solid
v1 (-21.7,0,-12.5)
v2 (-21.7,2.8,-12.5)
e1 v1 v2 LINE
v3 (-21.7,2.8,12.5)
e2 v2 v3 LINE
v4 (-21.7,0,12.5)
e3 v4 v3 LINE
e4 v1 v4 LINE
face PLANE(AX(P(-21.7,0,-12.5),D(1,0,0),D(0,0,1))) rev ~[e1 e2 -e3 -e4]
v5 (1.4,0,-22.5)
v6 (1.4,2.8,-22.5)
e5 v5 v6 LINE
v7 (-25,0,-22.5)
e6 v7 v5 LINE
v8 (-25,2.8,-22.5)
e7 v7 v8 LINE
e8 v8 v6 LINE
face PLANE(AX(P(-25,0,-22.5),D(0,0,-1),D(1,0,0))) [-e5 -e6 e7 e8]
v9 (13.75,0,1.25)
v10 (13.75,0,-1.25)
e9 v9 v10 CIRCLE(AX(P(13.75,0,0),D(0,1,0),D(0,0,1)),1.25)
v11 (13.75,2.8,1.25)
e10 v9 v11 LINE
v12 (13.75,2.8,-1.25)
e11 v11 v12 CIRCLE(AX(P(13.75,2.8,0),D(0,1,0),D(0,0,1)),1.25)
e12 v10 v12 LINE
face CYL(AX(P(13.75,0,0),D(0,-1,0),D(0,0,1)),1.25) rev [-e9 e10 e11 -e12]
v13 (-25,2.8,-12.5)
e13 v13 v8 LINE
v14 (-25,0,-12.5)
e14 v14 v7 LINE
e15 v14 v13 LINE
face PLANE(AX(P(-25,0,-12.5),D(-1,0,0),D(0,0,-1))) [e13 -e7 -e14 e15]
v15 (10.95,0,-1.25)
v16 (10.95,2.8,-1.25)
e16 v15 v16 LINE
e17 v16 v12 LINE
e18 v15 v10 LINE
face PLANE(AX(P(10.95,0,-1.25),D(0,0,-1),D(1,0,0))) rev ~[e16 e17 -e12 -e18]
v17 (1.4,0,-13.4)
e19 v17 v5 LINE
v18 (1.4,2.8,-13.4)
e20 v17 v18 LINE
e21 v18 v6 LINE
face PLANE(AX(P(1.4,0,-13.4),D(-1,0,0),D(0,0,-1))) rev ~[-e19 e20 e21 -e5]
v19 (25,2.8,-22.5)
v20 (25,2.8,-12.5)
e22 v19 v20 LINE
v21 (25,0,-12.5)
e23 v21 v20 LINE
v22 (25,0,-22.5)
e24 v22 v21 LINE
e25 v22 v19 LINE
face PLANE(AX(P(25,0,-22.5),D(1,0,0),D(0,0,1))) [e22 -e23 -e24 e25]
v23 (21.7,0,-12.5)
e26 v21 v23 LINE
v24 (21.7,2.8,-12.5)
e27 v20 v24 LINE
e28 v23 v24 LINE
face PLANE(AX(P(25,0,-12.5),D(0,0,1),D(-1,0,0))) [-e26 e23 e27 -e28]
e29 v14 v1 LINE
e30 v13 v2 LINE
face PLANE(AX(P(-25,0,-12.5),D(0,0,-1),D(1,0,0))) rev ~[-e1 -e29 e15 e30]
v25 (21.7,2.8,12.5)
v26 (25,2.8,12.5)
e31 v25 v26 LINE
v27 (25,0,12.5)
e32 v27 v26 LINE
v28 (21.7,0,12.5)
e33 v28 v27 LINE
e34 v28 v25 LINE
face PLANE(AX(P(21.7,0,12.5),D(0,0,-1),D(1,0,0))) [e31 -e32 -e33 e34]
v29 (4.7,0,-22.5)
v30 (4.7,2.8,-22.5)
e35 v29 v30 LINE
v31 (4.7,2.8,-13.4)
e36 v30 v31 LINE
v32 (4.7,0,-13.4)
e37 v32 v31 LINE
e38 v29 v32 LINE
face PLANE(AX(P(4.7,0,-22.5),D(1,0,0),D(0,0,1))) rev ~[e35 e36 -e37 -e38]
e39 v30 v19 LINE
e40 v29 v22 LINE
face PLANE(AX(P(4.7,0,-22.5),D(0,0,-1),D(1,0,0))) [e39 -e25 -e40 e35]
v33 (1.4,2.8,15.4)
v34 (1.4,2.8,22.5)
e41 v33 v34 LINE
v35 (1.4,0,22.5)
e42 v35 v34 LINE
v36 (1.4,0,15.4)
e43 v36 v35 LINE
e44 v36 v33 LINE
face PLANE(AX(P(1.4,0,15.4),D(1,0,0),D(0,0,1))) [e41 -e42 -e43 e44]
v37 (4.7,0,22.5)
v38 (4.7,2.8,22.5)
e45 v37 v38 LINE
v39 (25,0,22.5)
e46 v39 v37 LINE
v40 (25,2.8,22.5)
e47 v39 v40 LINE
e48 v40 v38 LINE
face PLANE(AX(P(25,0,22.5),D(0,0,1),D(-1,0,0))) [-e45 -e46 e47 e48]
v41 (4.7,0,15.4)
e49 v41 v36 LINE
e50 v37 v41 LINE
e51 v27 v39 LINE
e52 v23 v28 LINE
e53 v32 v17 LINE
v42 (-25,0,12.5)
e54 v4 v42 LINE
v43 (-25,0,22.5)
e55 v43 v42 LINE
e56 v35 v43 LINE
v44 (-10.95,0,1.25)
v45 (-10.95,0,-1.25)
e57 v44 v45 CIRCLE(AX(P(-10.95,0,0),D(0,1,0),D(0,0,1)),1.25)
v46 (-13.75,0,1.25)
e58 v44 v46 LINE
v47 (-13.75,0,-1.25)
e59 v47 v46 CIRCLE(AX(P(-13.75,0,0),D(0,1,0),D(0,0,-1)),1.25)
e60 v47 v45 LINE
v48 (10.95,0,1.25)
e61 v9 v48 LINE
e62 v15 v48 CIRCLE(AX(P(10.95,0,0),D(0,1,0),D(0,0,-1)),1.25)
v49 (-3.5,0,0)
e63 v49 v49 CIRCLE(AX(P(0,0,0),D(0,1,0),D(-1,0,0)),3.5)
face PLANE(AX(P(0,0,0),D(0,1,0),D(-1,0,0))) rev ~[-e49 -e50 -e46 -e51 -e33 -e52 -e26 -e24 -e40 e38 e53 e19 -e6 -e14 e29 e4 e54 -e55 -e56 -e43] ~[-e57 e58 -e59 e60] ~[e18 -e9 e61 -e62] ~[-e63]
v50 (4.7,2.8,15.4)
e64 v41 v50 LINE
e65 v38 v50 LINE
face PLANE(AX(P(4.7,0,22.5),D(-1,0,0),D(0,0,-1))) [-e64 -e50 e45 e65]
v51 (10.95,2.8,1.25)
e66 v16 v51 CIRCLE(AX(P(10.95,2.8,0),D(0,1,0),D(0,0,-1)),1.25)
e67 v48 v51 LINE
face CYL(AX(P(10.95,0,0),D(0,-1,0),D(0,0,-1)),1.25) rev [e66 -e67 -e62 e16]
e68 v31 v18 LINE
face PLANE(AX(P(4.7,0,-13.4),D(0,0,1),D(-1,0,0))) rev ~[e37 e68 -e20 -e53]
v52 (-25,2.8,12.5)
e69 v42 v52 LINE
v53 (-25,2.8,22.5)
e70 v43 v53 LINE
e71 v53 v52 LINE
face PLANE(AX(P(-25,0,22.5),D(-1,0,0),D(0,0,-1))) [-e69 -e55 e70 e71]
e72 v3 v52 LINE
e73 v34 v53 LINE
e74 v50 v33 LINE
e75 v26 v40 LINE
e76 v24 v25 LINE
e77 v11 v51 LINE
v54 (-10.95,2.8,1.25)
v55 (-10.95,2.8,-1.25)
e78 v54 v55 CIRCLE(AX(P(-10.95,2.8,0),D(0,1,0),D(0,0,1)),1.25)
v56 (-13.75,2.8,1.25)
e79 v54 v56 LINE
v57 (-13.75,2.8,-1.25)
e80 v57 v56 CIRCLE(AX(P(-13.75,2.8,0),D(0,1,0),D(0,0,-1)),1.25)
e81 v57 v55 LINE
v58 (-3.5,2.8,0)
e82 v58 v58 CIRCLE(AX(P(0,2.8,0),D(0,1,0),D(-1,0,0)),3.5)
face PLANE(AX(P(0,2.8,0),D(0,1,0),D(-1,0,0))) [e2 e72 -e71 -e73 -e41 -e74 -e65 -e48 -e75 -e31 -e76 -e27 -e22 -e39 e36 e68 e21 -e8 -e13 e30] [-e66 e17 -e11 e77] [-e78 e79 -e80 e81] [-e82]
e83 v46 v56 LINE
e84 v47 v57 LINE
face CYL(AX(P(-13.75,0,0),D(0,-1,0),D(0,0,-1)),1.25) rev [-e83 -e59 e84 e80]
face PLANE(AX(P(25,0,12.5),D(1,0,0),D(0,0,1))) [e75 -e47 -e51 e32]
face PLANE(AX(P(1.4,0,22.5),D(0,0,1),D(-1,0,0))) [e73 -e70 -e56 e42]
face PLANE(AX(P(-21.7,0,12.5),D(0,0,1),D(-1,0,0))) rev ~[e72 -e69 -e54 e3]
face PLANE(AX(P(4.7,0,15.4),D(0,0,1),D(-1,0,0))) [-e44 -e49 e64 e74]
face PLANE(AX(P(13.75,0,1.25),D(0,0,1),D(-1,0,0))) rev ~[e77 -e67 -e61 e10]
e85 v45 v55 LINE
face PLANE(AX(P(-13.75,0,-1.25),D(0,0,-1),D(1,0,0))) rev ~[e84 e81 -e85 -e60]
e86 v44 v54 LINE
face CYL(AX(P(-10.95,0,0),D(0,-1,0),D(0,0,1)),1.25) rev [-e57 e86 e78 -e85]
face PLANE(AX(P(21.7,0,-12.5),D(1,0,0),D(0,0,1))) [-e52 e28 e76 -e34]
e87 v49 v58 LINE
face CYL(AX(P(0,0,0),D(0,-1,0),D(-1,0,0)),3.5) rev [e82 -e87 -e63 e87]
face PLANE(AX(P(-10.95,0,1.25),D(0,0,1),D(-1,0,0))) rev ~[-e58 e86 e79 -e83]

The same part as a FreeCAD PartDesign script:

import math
import FreeCAD as App
import Part
import Sketcher
Q = App.Units.Quantity


def add_polygon(sketch, points):
    """Adds a closed chain of lines whose ends are joined by coincident constraints."""
    first, n = sketch.GeometryCount, len(points)
    for a, b in zip(points, points[1:] + points[:1]):
        sketch.addGeometry(Part.LineSegment(App.Vector(*a, 0), App.Vector(*b, 0)), False)
    for i in range(n):
        sketch.addConstraint(Sketcher.Constraint("Coincident", first + i, 2, first + (i + 1) % n, 1))

doc = App.newDocument("Part")
body = doc.addObject("PartDesign::Body", "Body")

sketch1 = body.newObject("Sketcher::SketchObject", "Sketch")
sketch1.AttachmentSupport = (doc.getObject("XZ_Plane"), [""])
sketch1.MapMode = "FlatFace"
add_polygon(sketch1, [(4.7, 22.5), (25, 22.5), (25, 12.5), (21.7, 12.5), (21.7, -12.5), (25, -12.5), (25, -22.5), (4.7, -22.5), (4.7, -13.4), (1.4, -13.4), (1.4, -22.5), (-25, -22.5), (-25, -12.5), (-21.7, -12.5), (-21.7, 12.5), (-25, 12.5), (-25, 22.5), (1.4, 22.5), (1.4, 15.4), (4.7, 15.4)])
sketch1.addGeometry(Part.ArcOfCircle(Part.Circle(App.Vector(10.9, 0, 0), App.Vector(0, 0, 1), 1.2), math.radians(90), math.radians(270)), False)
sketch1.addGeometry(Part.LineSegment(App.Vector(10.9, -1.2, 0), App.Vector(13.8, -1.2, 0)), False)
sketch1.addGeometry(Part.ArcOfCircle(Part.Circle(App.Vector(13.8, 0, 0), App.Vector(0, 0, 1), 1.2), math.radians(-90), math.radians(90)), False)
sketch1.addGeometry(Part.LineSegment(App.Vector(13.8, 1.2, 0), App.Vector(10.9, 1.2, 0)), False)
sketch1.addGeometry(Part.Circle(App.Vector(0, 0, 0), App.Vector(0, 0, 1), 3.5), False)
sketch1.addGeometry(Part.ArcOfCircle(Part.Circle(App.Vector(-13.8, 0, 0), App.Vector(0, 0, 1), 1.2), math.radians(90), math.radians(270)), False)
sketch1.addGeometry(Part.LineSegment(App.Vector(-13.8, -1.2, 0), App.Vector(-10.9, -1.2, 0)), False)
sketch1.addGeometry(Part.ArcOfCircle(Part.Circle(App.Vector(-10.9, 0, 0), App.Vector(0, 0, 1), 1.2), math.radians(-90), math.radians(90)), False)
sketch1.addGeometry(Part.LineSegment(App.Vector(-10.9, 1.2, 0), App.Vector(-13.8, 1.2, 0)), False)
sketch1.addConstraint([
    Sketcher.Constraint("Tangent", 20, 2, 21, 1),
    Sketcher.Constraint("Tangent", 21, 2, 22, 1),
    Sketcher.Constraint("Tangent", 22, 2, 23, 1),
    Sketcher.Constraint("Tangent", 23, 2, 20, 1),
    Sketcher.Constraint("Tangent", 25, 2, 26, 1),
    Sketcher.Constraint("Tangent", 26, 2, 27, 1),
    Sketcher.Constraint("Tangent", 27, 2, 28, 1),
    Sketcher.Constraint("Tangent", 28, 2, 25, 1),
    Sketcher.Constraint("Horizontal", 0),
    Sketcher.Constraint("Vertical", 1),
    Sketcher.Constraint("Horizontal", 2),
    Sketcher.Constraint("Vertical", 3),
    Sketcher.Constraint("Horizontal", 4),
    Sketcher.Constraint("Vertical", 5),
    Sketcher.Constraint("Horizontal", 6),
    Sketcher.Constraint("Vertical", 7),
    Sketcher.Constraint("Horizontal", 8),
    Sketcher.Constraint("Vertical", 9),
    Sketcher.Constraint("Horizontal", 10),
    Sketcher.Constraint("Vertical", 11),
    Sketcher.Constraint("Horizontal", 12),
    Sketcher.Constraint("Vertical", 13),
    Sketcher.Constraint("Horizontal", 14),
    Sketcher.Constraint("Vertical", 15),
    Sketcher.Constraint("Horizontal", 16),
    Sketcher.Constraint("Vertical", 17),
    Sketcher.Constraint("Horizontal", 18),
    Sketcher.Constraint("Vertical", 19),
    Sketcher.Constraint("Horizontal", 21),
    Sketcher.Constraint("Horizontal", 23),
    Sketcher.Constraint("Horizontal", 26),
    Sketcher.Constraint("Horizontal", 28),
    Sketcher.Constraint("Coincident", 24, 3, -1, 1),
    Sketcher.Constraint("Equal", 22, 25),
    Sketcher.Constraint("Symmetric", 22, 3, 25, 3, -1, 1),
    Sketcher.Constraint("Symmetric", 0, 2, 10, 2, -1, 1),
    Sketcher.Constraint("Symmetric", 2, 2, 12, 2, -1, 1),
    Sketcher.Constraint("Symmetric", 4, 2, 14, 2, -1, 1),
    Sketcher.Constraint("Symmetric", 20, 3, 27, 3, -2),
    Sketcher.Constraint("Symmetric", 5, 2, 10, 2, -2),
    Sketcher.Constraint("Symmetric", 9, 2, 16, 2, -1),
    Sketcher.Constraint("Horizontal", 4, 2, 11, 2),
    Sketcher.Constraint("Vertical", 7, 2, 18, 2),
    Sketcher.Constraint("Equal", 4, 8),
    Sketcher.Constraint("Diameter", 24, Q("7 mm")),
    Sketcher.Constraint("DistanceY", 3, 2, 3, 1, Q("25 mm")),
    Sketcher.Constraint("Radius", 20, Q("1.25 mm")),
    Sketcher.Constraint("DistanceX", 0, 1, 0, 2, Q("20.3 mm")),
    Sketcher.Constraint("DistanceX", 2, 2, 2, 1, Q("3.3 mm")),
    Sketcher.Constraint("DistanceY", 7, 1, 7, 2, Q("9.1 mm")),
    Sketcher.Constraint("DistanceY", 17, 2, 17, 1, Q("7.1 mm")),
    Sketcher.Constraint("DistanceX", -1, 1, 0, 2, Q("25 mm")),
    Sketcher.Constraint("DistanceY", 1, 2, 1, 1, Q("10 mm")),
    Sketcher.Constraint("DistanceX", 21, 1, 21, 2, Q("2.8 mm")),
    Sketcher.Constraint("DistanceX", 25, 3, 20, 3, Q("24.7 mm")),
])
pad1 = body.newObject("PartDesign::Pad", "Pad")
pad1.Profile = sketch1
pad1.Length = 2.8
pad1.Reversed = True

doc.recompute()
